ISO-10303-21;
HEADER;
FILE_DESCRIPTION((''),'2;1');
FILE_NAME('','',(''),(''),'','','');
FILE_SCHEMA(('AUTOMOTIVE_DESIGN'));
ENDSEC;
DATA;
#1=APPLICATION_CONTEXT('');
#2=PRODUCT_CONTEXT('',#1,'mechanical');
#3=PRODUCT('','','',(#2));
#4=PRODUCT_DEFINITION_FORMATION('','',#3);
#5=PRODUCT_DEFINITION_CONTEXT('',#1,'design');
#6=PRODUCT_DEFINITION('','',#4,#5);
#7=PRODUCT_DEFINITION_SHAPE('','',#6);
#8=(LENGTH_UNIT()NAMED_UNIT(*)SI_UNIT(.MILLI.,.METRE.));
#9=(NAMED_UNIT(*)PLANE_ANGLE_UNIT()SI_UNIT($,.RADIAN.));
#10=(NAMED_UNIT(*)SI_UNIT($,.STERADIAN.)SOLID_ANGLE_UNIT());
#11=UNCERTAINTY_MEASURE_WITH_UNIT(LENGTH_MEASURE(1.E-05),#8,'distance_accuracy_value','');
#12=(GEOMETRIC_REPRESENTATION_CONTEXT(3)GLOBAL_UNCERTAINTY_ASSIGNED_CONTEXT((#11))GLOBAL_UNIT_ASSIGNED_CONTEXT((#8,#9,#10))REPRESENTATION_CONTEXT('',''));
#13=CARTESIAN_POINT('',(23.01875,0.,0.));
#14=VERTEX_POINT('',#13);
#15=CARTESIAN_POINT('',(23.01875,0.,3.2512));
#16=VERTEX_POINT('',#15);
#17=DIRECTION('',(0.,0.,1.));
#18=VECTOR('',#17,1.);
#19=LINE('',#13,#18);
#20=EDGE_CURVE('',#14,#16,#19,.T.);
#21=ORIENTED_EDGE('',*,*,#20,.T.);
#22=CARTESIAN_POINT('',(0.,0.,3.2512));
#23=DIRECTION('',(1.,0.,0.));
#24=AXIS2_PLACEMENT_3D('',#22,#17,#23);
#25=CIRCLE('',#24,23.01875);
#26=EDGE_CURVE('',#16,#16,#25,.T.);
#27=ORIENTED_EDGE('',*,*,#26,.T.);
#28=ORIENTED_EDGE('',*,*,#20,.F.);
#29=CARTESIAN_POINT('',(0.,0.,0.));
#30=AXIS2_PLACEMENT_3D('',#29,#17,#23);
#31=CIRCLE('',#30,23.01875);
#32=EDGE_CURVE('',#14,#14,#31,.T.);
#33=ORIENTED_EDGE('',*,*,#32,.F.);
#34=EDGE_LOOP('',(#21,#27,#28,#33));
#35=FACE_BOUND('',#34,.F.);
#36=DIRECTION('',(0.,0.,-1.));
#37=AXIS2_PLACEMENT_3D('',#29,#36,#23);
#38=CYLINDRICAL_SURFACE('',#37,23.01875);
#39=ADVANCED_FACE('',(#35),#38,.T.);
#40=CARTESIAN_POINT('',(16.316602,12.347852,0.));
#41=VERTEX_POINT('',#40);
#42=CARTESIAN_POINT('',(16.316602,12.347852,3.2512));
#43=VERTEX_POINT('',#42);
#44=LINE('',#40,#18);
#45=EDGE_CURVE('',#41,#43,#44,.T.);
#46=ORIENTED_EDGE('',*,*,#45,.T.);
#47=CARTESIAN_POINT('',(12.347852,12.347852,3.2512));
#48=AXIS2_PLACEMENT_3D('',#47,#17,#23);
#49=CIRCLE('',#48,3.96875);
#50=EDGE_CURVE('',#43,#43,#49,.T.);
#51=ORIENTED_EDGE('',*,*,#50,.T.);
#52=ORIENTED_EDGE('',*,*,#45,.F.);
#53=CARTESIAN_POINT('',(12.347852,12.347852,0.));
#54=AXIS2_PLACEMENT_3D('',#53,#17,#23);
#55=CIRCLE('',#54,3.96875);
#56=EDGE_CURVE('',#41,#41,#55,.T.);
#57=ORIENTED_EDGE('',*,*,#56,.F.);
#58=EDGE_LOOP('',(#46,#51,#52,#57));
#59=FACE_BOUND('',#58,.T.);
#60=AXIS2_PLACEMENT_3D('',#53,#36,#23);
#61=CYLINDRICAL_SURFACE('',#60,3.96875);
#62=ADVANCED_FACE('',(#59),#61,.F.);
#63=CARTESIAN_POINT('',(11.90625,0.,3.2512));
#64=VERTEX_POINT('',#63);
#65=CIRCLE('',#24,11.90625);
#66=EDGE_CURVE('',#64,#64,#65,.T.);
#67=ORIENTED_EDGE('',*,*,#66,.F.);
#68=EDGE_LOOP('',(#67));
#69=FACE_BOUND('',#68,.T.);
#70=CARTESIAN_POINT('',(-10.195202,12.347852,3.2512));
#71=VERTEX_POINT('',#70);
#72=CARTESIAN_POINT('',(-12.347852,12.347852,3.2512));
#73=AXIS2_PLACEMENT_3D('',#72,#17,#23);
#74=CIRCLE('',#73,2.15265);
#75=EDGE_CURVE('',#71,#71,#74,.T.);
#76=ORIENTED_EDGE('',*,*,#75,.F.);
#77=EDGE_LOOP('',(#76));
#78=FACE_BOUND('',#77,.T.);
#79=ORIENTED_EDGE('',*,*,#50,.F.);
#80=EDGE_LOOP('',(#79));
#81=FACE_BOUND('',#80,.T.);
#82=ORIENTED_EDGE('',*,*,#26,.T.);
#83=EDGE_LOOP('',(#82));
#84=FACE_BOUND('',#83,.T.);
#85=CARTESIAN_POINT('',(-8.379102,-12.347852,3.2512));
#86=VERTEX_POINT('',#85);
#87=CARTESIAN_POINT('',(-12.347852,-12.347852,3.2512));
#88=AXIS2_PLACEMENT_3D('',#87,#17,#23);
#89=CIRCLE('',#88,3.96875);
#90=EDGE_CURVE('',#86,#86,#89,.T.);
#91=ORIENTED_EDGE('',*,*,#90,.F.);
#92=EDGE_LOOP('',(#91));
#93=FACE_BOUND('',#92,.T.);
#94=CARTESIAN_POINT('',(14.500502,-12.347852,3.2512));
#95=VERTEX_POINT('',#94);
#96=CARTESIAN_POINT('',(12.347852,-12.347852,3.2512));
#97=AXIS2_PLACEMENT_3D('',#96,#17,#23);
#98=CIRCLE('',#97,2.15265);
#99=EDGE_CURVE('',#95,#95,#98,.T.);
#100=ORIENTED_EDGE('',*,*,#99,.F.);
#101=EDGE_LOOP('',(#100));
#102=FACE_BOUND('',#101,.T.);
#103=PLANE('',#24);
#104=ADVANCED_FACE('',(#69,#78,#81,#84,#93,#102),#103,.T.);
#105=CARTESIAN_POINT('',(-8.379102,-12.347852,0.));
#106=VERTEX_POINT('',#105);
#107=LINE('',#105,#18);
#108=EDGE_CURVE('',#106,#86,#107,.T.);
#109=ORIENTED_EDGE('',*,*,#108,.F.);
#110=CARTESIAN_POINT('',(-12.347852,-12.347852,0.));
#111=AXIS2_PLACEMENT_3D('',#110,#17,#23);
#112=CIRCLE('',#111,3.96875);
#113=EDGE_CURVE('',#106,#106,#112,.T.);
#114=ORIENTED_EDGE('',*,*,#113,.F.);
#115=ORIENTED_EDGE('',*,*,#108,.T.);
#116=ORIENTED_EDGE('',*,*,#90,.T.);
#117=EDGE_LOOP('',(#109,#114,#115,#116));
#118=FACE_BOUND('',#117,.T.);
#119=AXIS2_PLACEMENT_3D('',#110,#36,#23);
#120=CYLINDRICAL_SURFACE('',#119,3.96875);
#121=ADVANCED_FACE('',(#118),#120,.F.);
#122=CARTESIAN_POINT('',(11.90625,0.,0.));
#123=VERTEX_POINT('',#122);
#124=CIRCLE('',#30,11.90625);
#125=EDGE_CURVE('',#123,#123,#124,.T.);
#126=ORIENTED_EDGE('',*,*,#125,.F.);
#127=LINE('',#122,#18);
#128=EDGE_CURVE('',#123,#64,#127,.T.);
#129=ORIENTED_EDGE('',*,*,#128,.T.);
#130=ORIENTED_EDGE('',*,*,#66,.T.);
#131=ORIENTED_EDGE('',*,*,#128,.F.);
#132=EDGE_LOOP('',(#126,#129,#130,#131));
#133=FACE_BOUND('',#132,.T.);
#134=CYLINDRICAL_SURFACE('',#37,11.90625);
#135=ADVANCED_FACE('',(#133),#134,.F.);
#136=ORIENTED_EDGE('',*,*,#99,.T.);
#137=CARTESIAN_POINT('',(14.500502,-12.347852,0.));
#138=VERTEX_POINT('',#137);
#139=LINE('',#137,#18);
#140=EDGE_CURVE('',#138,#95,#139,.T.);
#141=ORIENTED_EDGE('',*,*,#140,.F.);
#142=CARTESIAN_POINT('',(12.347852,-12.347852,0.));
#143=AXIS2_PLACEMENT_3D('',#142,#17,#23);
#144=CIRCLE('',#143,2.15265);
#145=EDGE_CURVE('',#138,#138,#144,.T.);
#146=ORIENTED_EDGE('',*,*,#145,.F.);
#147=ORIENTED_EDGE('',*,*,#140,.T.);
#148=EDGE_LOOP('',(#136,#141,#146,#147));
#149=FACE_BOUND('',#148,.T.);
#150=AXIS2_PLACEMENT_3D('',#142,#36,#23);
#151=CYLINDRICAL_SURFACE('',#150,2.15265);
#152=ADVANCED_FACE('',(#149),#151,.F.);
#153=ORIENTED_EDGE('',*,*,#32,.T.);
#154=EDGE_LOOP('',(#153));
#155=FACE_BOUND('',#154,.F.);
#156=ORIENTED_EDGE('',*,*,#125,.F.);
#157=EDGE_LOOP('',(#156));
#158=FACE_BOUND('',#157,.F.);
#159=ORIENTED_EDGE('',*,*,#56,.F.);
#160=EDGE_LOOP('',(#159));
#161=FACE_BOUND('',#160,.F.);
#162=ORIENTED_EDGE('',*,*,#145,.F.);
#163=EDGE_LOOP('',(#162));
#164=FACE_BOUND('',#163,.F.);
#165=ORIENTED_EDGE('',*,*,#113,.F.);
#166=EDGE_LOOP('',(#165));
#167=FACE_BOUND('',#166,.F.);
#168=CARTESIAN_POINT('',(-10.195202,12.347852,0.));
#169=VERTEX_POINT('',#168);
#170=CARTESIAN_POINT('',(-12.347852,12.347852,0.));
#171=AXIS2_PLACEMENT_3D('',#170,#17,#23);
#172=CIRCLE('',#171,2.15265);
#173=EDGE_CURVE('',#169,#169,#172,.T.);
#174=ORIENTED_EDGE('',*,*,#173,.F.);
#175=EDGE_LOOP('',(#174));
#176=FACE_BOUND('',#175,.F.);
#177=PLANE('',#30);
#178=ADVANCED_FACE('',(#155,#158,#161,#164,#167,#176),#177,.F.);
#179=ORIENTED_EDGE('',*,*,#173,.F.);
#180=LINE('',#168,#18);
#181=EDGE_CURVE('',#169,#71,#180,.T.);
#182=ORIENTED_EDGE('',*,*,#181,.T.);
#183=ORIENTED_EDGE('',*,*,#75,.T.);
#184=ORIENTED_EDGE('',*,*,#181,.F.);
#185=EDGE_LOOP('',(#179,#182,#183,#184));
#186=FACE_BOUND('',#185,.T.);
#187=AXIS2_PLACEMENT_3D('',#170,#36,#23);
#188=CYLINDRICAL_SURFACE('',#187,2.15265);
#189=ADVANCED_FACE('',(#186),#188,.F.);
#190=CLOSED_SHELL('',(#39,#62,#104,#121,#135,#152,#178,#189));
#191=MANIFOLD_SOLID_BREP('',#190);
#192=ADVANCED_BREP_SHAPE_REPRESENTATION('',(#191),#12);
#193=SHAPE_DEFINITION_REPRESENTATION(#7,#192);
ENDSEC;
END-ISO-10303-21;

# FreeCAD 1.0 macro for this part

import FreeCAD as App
import Part
import Sketcher
Q = App.Units.Quantity

doc = App.newDocument("Part")
body = doc.addObject("PartDesign::Body", "Body")

sketch1 = body.newObject("Sketcher::SketchObject", "Sketch")
sketch1.AttachmentSupport = (doc.getObject("XY_Plane"), [""])
sketch1.MapMode = "FlatFace"
sketch1.addGeometry([
    Part.Circle(App.Vector(0, 0, 0), App.Vector(0, 0, 1), 23),
    Part.Circle(App.Vector(-12.3, -12.3, 0), App.Vector(0, 0, 1), 4),
    Part.Circle(App.Vector(12.3, -12.3, 0), App.Vector(0, 0, 1), 2.2),
    Part.Circle(App.Vector(0, 0, 0), App.Vector(0, 0, 1), 11.9),
    Part.Circle(App.Vector(-12.3, 12.3, 0), App.Vector(0, 0, 1), 2.2),
    Part.Circle(App.Vector(12.3, 12.3, 0), App.Vector(0, 0, 1), 4),
], False)
sketch1.addConstraint([
    Sketcher.Constraint("Coincident", 0, 3, -1, 1),
    Sketcher.Constraint("Coincident", 3, 3, -1, 1),
    Sketcher.Constraint("Equal", 2, 4),
    Sketcher.Constraint("Equal", 1, 5),
    Sketcher.Constraint("Symmetric", 2, 3, 4, 3, -1, 1),
    Sketcher.Constraint("Symmetric", 1, 3, 5, 3, -1, 1),
    Sketcher.Constraint("Symmetric", 1, 3, 2, 3, -2),
    Sketcher.Constraint("Diameter", 0, Q("1.8125 in")),
    Sketcher.Constraint("Diameter", 1, Q("0.3125 in")),
    Sketcher.Constraint("Diameter", 3, Q("0.9375 in")),
    Sketcher.Constraint("Diameter", 2, Q("0.1695 in")),
    Sketcher.Constraint("DistanceX", 1, 3, -1, 1, Q("12.347852 mm")),
    Sketcher.Constraint("DistanceY", 1, 3, -1, 1, Q("12.347852 mm")),
])
pad1 = body.newObject("PartDesign::Pad", "Pad")
pad1.Profile = sketch1
pad1.Length = Q("0.128 in")

doc.recompute()
